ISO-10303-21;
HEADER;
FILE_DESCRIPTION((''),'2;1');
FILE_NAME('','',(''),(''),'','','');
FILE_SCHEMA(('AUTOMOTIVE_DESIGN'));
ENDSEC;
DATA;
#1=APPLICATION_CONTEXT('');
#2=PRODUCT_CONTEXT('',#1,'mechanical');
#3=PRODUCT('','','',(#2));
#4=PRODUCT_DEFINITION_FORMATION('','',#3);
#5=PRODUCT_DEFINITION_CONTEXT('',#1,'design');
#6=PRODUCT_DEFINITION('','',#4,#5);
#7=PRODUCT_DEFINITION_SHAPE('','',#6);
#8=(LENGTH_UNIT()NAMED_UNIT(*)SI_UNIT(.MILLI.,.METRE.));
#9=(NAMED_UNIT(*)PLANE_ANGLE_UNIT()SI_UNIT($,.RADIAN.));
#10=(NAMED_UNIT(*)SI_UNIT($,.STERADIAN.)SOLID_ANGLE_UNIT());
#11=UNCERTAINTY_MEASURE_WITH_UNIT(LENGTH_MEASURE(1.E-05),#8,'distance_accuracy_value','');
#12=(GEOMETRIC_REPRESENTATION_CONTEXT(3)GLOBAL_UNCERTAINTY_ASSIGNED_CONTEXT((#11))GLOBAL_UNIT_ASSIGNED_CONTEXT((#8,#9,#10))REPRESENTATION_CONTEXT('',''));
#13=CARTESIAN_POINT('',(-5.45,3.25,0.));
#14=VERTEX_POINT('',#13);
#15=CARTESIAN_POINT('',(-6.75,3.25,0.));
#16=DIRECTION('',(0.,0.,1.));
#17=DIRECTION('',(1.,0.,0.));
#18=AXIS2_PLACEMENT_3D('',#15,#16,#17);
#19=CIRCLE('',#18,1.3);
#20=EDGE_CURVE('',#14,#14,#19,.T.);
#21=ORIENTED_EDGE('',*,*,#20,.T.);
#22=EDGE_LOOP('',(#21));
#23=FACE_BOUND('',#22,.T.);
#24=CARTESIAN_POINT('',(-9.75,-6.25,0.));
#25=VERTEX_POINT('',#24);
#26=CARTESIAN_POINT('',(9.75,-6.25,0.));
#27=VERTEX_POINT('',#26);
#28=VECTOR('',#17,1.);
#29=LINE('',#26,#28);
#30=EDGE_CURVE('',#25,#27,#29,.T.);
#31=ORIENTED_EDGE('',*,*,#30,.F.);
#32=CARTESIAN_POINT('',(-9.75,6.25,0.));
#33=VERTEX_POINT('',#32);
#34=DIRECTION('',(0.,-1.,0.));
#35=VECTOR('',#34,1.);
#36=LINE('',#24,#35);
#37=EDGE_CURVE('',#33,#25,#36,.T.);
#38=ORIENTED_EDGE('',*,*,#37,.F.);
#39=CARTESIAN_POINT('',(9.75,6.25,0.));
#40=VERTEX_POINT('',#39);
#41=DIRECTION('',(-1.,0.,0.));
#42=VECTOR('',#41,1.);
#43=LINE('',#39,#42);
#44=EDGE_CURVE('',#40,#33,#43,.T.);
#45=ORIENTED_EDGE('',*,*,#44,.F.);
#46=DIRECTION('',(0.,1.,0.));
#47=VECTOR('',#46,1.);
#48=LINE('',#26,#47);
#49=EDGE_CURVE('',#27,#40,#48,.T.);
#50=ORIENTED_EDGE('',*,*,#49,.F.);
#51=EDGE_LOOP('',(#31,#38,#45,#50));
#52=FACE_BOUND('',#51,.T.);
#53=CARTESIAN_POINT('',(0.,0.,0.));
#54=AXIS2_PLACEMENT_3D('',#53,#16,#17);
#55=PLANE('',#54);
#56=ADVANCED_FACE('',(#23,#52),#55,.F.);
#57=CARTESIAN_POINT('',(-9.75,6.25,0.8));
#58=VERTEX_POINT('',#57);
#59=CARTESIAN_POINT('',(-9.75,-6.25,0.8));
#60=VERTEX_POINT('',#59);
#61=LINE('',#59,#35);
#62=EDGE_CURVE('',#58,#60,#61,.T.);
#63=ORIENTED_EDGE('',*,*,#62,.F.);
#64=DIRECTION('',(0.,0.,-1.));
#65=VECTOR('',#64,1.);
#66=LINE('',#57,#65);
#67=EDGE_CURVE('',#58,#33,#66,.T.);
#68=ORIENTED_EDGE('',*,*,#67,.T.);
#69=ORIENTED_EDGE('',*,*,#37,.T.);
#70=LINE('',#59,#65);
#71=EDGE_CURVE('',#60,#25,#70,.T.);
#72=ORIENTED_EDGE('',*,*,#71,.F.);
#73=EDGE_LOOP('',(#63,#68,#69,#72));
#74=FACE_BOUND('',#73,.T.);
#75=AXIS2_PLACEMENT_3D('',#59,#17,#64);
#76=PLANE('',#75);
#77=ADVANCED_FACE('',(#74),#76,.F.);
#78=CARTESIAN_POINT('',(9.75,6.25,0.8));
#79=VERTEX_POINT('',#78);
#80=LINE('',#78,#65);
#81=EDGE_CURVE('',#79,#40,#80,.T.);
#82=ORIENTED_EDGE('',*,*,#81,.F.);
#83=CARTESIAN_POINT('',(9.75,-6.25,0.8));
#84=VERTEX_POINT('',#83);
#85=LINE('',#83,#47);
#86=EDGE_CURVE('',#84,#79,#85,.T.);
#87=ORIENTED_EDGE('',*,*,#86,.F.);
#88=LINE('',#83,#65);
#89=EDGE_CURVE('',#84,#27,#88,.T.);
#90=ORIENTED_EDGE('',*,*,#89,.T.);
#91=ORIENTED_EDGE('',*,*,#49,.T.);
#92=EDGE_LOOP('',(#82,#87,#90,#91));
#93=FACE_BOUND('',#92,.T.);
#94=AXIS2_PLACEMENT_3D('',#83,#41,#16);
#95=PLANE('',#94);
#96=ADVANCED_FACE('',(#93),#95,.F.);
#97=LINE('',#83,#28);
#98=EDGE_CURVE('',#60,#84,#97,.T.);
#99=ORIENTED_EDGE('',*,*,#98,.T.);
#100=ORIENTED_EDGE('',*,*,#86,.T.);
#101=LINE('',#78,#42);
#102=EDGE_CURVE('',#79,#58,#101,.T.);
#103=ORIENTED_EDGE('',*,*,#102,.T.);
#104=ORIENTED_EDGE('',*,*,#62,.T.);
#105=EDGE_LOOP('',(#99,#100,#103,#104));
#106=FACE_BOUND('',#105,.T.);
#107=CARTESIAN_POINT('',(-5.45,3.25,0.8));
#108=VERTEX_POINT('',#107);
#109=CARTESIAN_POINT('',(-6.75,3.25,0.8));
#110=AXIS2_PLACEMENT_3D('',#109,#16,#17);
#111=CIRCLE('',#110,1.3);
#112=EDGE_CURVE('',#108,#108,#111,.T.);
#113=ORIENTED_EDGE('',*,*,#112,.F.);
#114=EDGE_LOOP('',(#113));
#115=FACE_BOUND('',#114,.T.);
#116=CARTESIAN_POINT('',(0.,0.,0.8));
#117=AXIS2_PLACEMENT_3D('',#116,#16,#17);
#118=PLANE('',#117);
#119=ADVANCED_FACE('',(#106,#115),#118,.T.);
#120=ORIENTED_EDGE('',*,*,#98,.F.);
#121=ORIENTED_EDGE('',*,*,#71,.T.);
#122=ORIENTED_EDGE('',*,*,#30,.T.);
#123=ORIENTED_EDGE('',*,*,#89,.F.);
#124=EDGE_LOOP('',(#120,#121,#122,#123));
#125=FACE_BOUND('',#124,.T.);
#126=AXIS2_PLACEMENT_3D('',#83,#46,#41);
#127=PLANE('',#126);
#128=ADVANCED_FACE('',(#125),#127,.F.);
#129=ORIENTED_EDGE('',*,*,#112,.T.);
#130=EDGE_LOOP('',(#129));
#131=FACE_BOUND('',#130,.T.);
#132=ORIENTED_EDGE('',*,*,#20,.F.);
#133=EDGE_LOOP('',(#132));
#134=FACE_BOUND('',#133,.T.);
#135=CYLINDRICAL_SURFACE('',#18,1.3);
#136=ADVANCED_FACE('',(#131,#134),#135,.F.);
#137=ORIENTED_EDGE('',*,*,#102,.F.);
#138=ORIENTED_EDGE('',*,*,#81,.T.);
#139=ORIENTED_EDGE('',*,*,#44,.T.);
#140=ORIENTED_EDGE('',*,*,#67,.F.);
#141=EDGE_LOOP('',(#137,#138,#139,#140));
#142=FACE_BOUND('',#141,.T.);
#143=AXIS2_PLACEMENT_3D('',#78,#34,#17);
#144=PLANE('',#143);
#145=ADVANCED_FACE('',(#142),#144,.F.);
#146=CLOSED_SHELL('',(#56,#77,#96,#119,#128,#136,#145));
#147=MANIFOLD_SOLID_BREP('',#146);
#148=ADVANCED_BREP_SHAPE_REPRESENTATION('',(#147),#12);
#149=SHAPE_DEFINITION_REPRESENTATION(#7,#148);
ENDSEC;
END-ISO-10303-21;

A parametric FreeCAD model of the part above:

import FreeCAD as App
import Part
import Sketcher

V = App.Vector

doc = App.newDocument("Part")
body = doc.addObject("PartDesign::Body", "Body")

sketch1 = body.newObject("Sketcher::SketchObject", "Sketch")
sketch1.AttachmentSupport = (doc.getObject("XY_Plane"), [""])
sketch1.MapMode = "FlatFace"
sketch1.addGeometry(Part.LineSegment(V(-9.75, 6.25, 0), V(-9.75, -6.25, 0)), False)
sketch1.addGeometry(Part.LineSegment(V(-9.75, -6.25, 0), V(9.75, -6.25, 0)), False)
sketch1.addGeometry(Part.LineSegment(V(9.75, -6.25, 0), V(9.75, 6.25, 0)), False)
sketch1.addGeometry(Part.LineSegment(V(9.75, 6.25, 0), V(-9.75, 6.25, 0)), False)
sketch1.addConstraint(Sketcher.Constraint("Coincident", 0, 2, 1, 1))
sketch1.addConstraint(Sketcher.Constraint("Coincident", 1, 2, 2, 1))
sketch1.addConstraint(Sketcher.Constraint("Coincident", 2, 2, 3, 1))
sketch1.addConstraint(Sketcher.Constraint("Coincident", 3, 2, 0, 1))
sketch1.addConstraint(Sketcher.Constraint("Vertical", 0))
sketch1.addConstraint(Sketcher.Constraint("Horizontal", 1))
sketch1.addConstraint(Sketcher.Constraint("Vertical", 2))
sketch1.addConstraint(Sketcher.Constraint("Horizontal", 3))
sketch1.addConstraint(Sketcher.Constraint("Symmetric", 0, 2, 2, 2, -1, 1))
sketch1.addConstraint(Sketcher.Constraint("DistanceX", 1, 1, 1, 2, 19.5))
sketch1.addConstraint(Sketcher.Constraint("DistanceY", 0, 2, 0, 1, 12.5))
pad1 = body.newObject("PartDesign::Pad", "Pad")
pad1.Profile = sketch1
pad1.Length = 0.8

sketch2 = body.newObject("Sketcher::SketchObject", "Sketch001")
sketch2.AttachmentSupport = (doc.getObject("XY_Plane"), [""])
sketch2.MapMode = "FlatFace"
sketch2.AttachmentOffset = App.Placement(V(0, 0, 0.8), App.Rotation())
sketch2.addGeometry(Part.Circle(V(-6.75, 3.25, 0), V(0, 0, 1), 1.3), False)
sketch2.addConstraint(Sketcher.Constraint("Diameter", 0, 2.6))
sketch2.addConstraint(Sketcher.Constraint("DistanceX", 0, 3, -1, 1, 6.75))
sketch2.addConstraint(Sketcher.Constraint("DistanceY", -1, 1, 0, 3, 3.25))
pocket1 = body.newObject("PartDesign::Pocket", "Pocket")
pocket1.Profile = sketch2
pocket1.Length = 0.8

doc.recompute()
